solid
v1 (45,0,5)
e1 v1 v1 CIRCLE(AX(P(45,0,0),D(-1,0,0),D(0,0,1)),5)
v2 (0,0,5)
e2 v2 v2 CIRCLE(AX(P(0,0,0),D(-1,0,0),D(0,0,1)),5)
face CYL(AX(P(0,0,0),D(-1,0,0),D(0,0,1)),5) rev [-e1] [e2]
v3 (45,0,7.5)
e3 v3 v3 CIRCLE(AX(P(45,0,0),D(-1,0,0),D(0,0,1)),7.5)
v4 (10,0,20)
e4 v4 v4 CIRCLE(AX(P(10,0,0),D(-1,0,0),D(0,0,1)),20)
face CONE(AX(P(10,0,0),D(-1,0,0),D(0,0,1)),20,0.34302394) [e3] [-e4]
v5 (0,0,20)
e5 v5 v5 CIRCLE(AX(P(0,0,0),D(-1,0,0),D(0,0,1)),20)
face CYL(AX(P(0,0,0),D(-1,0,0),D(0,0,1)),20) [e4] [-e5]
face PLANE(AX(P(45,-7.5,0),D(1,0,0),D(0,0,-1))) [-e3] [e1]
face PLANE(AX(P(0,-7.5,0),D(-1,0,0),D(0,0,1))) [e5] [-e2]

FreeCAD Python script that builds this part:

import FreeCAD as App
import Part
import Sketcher

V = App.Vector
Q = App.Units.Quantity

doc = App.newDocument("Part")
body = doc.addObject("PartDesign::Body", "Body")

sketch1 = body.newObject("Sketcher::SketchObject", "Sketch")
sketch1.AttachmentSupport = (doc.getObject("XY_Plane"), [""])
sketch1.MapMode = "FlatFace"
sketch1.addGeometry(Part.LineSegment(V(0, -20, 0), V(10, -20, 0)), False)
sketch1.addGeometry(Part.LineSegment(V(10, -20, 0), V(45, -7.5, 0)), False)
sketch1.addGeometry(Part.LineSegment(V(45, -7.5, 0), V(45, -5, 0)), False)
sketch1.addGeometry(Part.LineSegment(V(45, -5, 0), V(0, -5, 0)), False)
sketch1.addGeometry(Part.LineSegment(V(0, -5, 0), V(0, -20, 0)), False)
sketch1.addConstraint(Sketcher.Constraint("Coincident", 0, 2, 1, 1))
sketch1.addConstraint(Sketcher.Constraint("Coincident", 1, 2, 2, 1))
sketch1.addConstraint(Sketcher.Constraint("Coincident", 2, 2, 3, 1))
sketch1.addConstraint(Sketcher.Constraint("Coincident", 3, 2, 4, 1))
sketch1.addConstraint(Sketcher.Constraint("Coincident", 4, 2, 0, 1))
sketch1.addConstraint(Sketcher.Constraint("Horizontal", 0))
sketch1.addConstraint(Sketcher.Constraint("Vertical", 2))
sketch1.addConstraint(Sketcher.Constraint("Horizontal", 3))
sketch1.addConstraint(Sketcher.Constraint("Vertical", 4))
sketch1.addConstraint(Sketcher.Constraint("PointOnObject", 3, 2, -2))
sketch1.addConstraint(Sketcher.Constraint("DistanceX", 0, 1, 0, 2, Q("10 mm")))
sketch1.addConstraint(Sketcher.Constraint("DistanceX", 3, 2, 3, 1, Q("45 mm")))
sketch1.addConstraint(Sketcher.Constraint("DistanceY", 4, 2, 4, 1, Q("15 mm")))
sketch1.addConstraint(Sketcher.Constraint("DistanceY", 2, 1, 2, 2, Q("2.5 mm")))
sketch1.addConstraint(Sketcher.Constraint("DistanceY", 0, 2, -1, 1, Q("20 mm")))
revolution = body.newObject("PartDesign::Revolution", "Revolution")
revolution.Profile = sketch1
revolution.ReferenceAxis = (sketch1, ["H_Axis"])
revolution.Angle = 360

doc.recompute()
